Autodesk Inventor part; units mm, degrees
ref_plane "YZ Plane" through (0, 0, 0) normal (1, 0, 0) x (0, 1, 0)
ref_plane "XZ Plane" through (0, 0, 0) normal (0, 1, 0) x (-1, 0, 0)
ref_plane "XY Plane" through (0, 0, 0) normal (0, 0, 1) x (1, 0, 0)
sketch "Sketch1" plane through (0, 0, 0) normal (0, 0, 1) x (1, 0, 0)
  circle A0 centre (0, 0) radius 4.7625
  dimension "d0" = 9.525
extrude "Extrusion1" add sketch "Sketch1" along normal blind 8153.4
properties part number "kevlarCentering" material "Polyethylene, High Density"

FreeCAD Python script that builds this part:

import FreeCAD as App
import Part
import Sketcher
Q = App.Units.Quantity

doc = App.newDocument("Part")
body = doc.addObject("PartDesign::Body", "Body")

sketch1 = body.newObject("Sketcher::SketchObject", "Sketch")
sketch1.AttachmentSupport = (doc.getObject("XY_Plane"), [""])
sketch1.MapMode = "FlatFace"
sketch1.addGeometry(Part.Circle(App.Vector(0, 0, 0), App.Vector(0, 0, 1), 4.8), False)
sketch1.addConstraint(Sketcher.Constraint("Coincident", 0, 3, -1, 1))
sketch1.addConstraint(Sketcher.Constraint("Diameter", 0, Q("0.375 in")))
pad1 = body.newObject("PartDesign::Pad", "Pad")
pad1.Profile = sketch1
pad1.Length = Q("321 in")

doc.recompute()
